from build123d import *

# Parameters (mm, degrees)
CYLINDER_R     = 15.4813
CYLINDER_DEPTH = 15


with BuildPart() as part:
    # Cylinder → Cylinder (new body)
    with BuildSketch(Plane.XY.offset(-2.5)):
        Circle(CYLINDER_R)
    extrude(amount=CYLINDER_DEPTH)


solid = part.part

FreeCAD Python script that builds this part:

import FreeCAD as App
import Part
import Sketcher
Q = App.Units.Quantity

doc = App.newDocument("Part")
params = doc.addObject("Spreadsheet::Sheet", "Params")
for row, (alias, value) in enumerate([
    ("pad1_length", "15 mm"),
], start=1):
    params.set(f"A{row}", alias)
    params.set(f"B{row}", "=" + value)
    params.setAlias(f"B{row}", alias)

body = doc.addObject("PartDesign::Body", "Body")

sketch1 = body.newObject("Sketcher::SketchObject", "Sketch")
sketch1.AttachmentSupport = (doc.getObject("XY_Plane"), [""])
sketch1.MapMode = "FlatFace"
sketch1.AttachmentOffset = App.Placement(App.Vector(0, 0, -2.5), App.Rotation())
sketch1.addGeometry(Part.Circle(App.Vector(0, 0, 0), App.Vector(0, 0, 1), 15), False)
sketch1.addConstraint([
    Sketcher.Constraint("Coincident", 0, 3, -1, 1),
    Sketcher.Constraint("Diameter", 0, Q("30.9626 mm")),
])
pad1 = body.newObject("PartDesign::Pad", "Pad")
pad1.Profile = sketch1
pad1.setExpression("Length", "Params.pad1_length")

doc.recompute()
